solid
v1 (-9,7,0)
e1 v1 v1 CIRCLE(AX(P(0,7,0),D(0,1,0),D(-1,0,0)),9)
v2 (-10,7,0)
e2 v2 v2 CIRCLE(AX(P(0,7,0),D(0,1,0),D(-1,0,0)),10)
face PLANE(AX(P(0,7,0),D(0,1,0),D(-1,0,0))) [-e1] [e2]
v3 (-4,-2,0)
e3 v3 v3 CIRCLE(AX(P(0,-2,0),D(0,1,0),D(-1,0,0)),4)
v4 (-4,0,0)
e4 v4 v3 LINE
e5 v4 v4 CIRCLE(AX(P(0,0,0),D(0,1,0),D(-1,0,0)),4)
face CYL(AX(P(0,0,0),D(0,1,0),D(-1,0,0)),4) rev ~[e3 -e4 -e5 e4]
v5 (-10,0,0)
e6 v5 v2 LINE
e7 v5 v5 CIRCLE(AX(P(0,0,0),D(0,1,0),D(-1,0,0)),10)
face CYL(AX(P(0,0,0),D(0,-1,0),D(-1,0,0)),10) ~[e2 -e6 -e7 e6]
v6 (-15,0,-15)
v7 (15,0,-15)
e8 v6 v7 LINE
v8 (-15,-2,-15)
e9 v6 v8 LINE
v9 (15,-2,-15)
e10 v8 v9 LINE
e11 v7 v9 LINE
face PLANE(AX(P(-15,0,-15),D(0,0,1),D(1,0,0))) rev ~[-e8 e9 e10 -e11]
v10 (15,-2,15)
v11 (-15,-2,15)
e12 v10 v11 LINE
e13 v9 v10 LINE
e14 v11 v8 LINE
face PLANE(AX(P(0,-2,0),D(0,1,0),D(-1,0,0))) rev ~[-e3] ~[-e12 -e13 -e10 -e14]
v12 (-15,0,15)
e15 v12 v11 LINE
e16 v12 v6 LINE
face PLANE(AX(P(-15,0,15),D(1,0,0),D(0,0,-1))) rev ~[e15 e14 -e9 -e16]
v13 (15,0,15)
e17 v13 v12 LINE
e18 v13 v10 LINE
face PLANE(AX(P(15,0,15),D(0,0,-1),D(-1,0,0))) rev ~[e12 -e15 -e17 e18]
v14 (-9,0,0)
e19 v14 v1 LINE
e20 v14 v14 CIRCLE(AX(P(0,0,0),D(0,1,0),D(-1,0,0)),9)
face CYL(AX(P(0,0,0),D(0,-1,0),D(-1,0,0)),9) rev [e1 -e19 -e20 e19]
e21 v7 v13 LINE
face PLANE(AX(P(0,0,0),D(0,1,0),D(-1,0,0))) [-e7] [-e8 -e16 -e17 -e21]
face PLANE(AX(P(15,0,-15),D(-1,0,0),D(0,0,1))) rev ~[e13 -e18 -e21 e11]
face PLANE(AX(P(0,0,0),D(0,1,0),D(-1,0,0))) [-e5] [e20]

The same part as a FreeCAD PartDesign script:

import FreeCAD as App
import Part
import Sketcher

V = App.Vector
Q = App.Units.Quantity

doc = App.newDocument("Part")
body = doc.addObject("PartDesign::Body", "Body")

sketch1 = body.newObject("Sketcher::SketchObject", "Sketch")
sketch1.AttachmentSupport = (doc.getObject("XZ_Plane"), [""])
sketch1.MapMode = "FlatFace"
sketch1.addGeometry([
    Part.LineSegment(V(15, -15, 0), V(-15, -15, 0)),
    Part.LineSegment(V(-15, -15, 0), V(-15, 15, 0)),
    Part.LineSegment(V(-15, 15, 0), V(15, 15, 0)),
    Part.LineSegment(V(15, 15, 0), V(15, -15, 0)),
], False)
sketch1.addConstraint([
    Sketcher.Constraint("Coincident", 0, 2, 1, 1),
    Sketcher.Constraint("Coincident", 1, 2, 2, 1),
    Sketcher.Constraint("Coincident", 2, 2, 3, 1),
    Sketcher.Constraint("Coincident", 3, 2, 0, 1),
    Sketcher.Constraint("Horizontal", 0),
    Sketcher.Constraint("Vertical", 1),
    Sketcher.Constraint("Horizontal", 2),
    Sketcher.Constraint("Vertical", 3),
    Sketcher.Constraint("Symmetric", 0, 2, 2, 2, -1, 1),
    Sketcher.Constraint("Equal", 2, 1),
    Sketcher.Constraint("DistanceX", 0, 2, 0, 1, Q("30 mm")),
])
pad1 = body.newObject("PartDesign::Pad", "Pad")
pad1.Profile = sketch1
pad1.Length = 2

sketch2 = body.newObject("Sketcher::SketchObject", "Sketch001")
sketch2.AttachmentSupport = (doc.getObject("XZ_Plane"), [""])
sketch2.MapMode = "FlatFace"
sketch2.addGeometry(Part.Circle(V(0, 0, 0), V(0, 0, 1), 4), False)
sketch2.addConstraint([
    Sketcher.Constraint("Coincident", 0, 3, -1, 1),
    Sketcher.Constraint("Diameter", 0, Q("8 mm")),
])
pocket1 = body.newObject("PartDesign::Pocket", "Pocket")
pocket1.Profile = sketch2
pocket1.Length = 3
pocket1.Reversed = True

sketch3 = body.newObject("Sketcher::SketchObject", "Sketch002")
sketch3.AttachmentSupport = (doc.getObject("XZ_Plane"), [""])
sketch3.MapMode = "FlatFace"
sketch3.addGeometry([
    Part.Circle(V(0, 0, 0), V(0, 0, 1), 10),
    Part.Circle(V(0, 0, 0), V(0, 0, 1), 9),
], False)
sketch3.addConstraint([
    Sketcher.Constraint("Coincident", 0, 3, -1, 1),
    Sketcher.Constraint("Coincident", 1, 3, -1, 1),
    Sketcher.Constraint("Diameter", 0, Q("20 mm")),
    Sketcher.Constraint("Diameter", 1, Q("18 mm")),
])
pad2 = body.newObject("PartDesign::Pad", "Pad001")
pad2.Profile = sketch3
pad2.Length = 7
pad2.Reversed = True

doc.recompute()
